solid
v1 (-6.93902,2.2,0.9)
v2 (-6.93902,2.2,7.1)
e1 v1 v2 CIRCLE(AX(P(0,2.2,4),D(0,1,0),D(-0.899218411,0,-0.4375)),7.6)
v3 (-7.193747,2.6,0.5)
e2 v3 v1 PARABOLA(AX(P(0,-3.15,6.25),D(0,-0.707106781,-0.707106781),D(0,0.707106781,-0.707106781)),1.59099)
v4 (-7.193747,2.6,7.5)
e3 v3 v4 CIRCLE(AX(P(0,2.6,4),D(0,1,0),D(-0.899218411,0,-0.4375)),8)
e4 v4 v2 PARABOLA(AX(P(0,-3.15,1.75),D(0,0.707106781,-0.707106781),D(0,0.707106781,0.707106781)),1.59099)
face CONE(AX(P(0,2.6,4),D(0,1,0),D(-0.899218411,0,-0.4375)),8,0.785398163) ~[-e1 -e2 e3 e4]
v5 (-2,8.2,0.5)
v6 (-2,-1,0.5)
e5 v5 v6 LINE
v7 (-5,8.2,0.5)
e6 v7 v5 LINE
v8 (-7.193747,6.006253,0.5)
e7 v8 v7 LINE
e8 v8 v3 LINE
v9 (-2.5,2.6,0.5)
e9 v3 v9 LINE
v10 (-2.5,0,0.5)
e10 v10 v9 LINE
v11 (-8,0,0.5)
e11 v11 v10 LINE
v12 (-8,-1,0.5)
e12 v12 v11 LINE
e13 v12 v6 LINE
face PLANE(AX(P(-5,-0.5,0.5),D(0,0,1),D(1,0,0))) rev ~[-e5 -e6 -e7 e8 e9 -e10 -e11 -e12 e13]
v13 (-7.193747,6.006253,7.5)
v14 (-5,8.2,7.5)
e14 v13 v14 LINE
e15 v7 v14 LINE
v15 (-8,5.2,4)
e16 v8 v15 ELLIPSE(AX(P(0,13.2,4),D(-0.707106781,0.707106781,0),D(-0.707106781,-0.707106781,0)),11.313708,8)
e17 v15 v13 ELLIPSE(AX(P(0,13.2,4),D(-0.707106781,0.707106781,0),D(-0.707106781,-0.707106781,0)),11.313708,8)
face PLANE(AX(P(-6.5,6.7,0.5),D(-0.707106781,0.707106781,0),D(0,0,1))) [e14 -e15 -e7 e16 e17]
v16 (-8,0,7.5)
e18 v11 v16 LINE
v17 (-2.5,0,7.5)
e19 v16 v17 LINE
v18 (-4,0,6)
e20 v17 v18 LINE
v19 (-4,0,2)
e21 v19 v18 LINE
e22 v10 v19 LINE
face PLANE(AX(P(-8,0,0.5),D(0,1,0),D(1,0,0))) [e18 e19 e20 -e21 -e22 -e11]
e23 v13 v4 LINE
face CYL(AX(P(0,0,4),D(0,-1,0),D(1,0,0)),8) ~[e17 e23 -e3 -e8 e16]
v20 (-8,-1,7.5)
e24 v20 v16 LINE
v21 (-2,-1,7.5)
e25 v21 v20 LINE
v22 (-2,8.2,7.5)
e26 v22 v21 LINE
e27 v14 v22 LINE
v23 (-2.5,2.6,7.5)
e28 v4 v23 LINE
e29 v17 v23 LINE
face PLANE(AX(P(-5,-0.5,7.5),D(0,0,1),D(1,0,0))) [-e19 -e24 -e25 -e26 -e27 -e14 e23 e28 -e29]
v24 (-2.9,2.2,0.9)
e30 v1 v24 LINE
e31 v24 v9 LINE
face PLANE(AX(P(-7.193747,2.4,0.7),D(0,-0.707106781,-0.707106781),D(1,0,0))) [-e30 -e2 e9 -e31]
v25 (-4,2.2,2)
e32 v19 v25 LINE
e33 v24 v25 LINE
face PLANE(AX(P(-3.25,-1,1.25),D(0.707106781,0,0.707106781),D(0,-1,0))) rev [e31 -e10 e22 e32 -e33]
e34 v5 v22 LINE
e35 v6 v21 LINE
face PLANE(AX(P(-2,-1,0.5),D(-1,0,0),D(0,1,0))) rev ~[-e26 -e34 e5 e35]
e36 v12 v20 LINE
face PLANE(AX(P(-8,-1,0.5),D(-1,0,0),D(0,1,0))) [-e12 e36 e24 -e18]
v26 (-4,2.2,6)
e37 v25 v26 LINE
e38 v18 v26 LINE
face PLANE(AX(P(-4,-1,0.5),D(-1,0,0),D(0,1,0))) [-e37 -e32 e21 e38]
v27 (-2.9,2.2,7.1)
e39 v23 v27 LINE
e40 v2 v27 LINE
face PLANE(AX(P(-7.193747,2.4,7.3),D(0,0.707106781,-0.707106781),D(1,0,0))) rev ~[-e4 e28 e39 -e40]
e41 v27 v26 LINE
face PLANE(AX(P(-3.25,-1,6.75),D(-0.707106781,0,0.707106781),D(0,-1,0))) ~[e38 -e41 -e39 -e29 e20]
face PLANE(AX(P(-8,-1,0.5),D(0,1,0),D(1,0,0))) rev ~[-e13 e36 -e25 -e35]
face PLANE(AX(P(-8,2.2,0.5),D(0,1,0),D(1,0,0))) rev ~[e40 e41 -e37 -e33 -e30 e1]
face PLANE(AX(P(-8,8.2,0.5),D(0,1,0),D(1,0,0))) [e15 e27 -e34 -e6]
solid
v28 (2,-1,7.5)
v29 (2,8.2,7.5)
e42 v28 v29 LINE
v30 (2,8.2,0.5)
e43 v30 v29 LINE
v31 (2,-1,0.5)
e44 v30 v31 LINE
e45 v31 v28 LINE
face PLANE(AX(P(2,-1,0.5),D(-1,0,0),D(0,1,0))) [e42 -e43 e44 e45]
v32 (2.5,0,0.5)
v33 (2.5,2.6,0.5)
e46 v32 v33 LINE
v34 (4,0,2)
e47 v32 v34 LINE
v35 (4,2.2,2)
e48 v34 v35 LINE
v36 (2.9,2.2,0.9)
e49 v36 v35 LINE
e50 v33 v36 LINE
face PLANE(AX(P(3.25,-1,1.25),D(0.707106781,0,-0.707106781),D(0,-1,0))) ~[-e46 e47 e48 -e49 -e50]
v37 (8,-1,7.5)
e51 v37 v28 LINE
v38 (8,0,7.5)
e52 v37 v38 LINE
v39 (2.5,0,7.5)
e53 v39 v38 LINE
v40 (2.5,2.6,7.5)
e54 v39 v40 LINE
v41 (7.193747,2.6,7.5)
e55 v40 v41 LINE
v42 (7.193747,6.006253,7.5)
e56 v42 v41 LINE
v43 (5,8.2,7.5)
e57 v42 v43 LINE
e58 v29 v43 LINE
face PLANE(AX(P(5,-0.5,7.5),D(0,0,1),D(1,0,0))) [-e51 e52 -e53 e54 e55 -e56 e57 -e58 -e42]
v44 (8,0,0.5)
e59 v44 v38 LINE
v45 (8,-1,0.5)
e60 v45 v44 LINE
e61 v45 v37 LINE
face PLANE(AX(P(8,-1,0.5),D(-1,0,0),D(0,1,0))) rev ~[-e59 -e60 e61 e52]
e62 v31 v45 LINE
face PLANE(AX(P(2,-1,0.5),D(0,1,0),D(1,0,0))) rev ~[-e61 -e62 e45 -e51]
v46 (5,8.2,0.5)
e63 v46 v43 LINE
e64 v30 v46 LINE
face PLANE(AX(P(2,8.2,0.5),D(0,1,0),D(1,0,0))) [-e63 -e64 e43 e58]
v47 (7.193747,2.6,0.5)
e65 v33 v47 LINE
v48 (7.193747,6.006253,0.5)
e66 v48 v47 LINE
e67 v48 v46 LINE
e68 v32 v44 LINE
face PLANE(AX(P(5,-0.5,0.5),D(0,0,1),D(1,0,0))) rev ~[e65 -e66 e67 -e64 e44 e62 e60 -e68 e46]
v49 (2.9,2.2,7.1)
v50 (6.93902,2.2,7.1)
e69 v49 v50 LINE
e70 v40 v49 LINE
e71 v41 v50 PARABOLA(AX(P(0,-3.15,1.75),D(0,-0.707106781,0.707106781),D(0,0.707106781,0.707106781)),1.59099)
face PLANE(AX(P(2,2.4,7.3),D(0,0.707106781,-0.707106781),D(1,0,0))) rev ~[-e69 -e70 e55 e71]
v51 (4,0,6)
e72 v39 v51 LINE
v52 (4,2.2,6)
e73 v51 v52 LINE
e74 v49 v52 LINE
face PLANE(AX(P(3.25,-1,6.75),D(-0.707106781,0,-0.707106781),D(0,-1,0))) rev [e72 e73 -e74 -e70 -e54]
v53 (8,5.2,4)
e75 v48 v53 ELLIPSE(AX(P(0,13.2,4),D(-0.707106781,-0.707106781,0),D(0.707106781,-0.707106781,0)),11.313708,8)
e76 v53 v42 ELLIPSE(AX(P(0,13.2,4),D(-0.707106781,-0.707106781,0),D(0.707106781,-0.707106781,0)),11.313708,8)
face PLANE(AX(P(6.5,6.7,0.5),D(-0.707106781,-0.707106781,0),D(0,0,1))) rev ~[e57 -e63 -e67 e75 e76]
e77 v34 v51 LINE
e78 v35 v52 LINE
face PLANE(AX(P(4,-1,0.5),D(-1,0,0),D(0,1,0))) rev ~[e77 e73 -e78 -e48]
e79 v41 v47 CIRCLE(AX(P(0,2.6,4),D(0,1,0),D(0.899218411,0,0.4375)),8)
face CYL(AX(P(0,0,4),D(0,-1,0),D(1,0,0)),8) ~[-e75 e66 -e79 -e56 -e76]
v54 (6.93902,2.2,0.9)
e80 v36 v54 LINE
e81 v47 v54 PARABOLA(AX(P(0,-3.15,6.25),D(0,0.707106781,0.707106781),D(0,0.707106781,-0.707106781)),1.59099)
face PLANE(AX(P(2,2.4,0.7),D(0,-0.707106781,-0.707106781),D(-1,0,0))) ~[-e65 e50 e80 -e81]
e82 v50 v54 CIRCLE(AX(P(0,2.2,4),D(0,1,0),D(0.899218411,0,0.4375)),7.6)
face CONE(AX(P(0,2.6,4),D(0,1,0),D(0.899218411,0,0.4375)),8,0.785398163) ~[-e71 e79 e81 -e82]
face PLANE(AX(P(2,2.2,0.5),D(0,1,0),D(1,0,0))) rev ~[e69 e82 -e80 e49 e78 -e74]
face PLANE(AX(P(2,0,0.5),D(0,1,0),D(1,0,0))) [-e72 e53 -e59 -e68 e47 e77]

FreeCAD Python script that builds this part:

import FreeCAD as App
import Part
import Sketcher

V = App.Vector
Q = App.Units.Quantity


def edges_at(feature, points):
    """Names of the edges that pass closest to the given points."""
    edges = feature.Shape.Edges
    near = lambda p: min(range(len(edges)), key=lambda i: edges[i].distToShape(Part.Vertex(*p))[0])
    return sorted({f"Edge{near(p) + 1}" for p in points})


def add_polygon(sketch, points):
    """Adds a closed chain of lines whose ends are joined by coincident constraints."""
    first, n = sketch.GeometryCount, len(points)
    for a, b in zip(points, points[1:] + points[:1]):
        sketch.addGeometry(Part.LineSegment(App.Vector(*a, 0), App.Vector(*b, 0)), False)
    for i in range(n):
        sketch.addConstraint(Sketcher.Constraint("Coincident", first + i, 2, first + (i + 1) % n, 1))

doc = App.newDocument("Part")
body = doc.addObject("PartDesign::Body", "Body")

# Sketch on XY plane
sketch1 = doc.addObject("Sketcher::SketchObject", "Sketch")
body.addObject(sketch1)
sketch1.AttachmentSupport = (doc.XY_Plane, [""])
sketch1.MapMode = "FlatFace"
sketch1.AttachmentOffset = App.Placement(V(0, 0, 0.5), App.Rotation())
add_polygon(sketch1, [(2, 0), (2, -1), (8, -1), (8, 0)])  # lines 0-3
sketch1.addConstraint([
    Sketcher.Constraint("Vertical", 0),
    Sketcher.Constraint("Horizontal", 1),
    Sketcher.Constraint("Vertical", 2),
    Sketcher.Constraint("Horizontal", 3),
    Sketcher.Constraint("PointOnObject", 2, 2, -1),
    Sketcher.Constraint("DistanceX", 1, 1, 1, 2, Q("6 mm")),
    Sketcher.Constraint("DistanceY", 0, 2, 0, 1, Q("1 mm")),
    Sketcher.Constraint("DistanceX", -1, 1, 0, 2, Q("2 mm")),
])
pad1 = doc.addObject("PartDesign::Pad", "Pad")
body.addObject(pad1)
pad1.Profile = sketch1
pad1.Length = 7
body2 = doc.addObject("PartDesign::Body", "Body001")

# Sketch on XY plane
sketch2 = doc.addObject("Sketcher::SketchObject", "Sketch001")
body2.addObject(sketch2)
sketch2.AttachmentSupport = (doc.getObject("XY_Plane001"), [""])
sketch2.MapMode = "FlatFace"
sketch2.AttachmentOffset = App.Placement(V(0, 0, 0.5), App.Rotation())
add_polygon(sketch2, [(-8, 0), (-8, -1), (-2, -1), (-2, 0)])  # lines 0-3
sketch2.addConstraint([
    Sketcher.Constraint("Vertical", 0),
    Sketcher.Constraint("Horizontal", 1),
    Sketcher.Constraint("Vertical", 2),
    Sketcher.Constraint("Horizontal", 3),
    Sketcher.Constraint("PointOnObject", 2, 2, -1),
    Sketcher.Constraint("DistanceX", 1, 1, 1, 2, Q("6 mm")),
    Sketcher.Constraint("DistanceY", 0, 2, 0, 1, Q("1 mm")),
    Sketcher.Constraint("DistanceX", 0, 2, -1, 1, Q("8 mm")),
])
pad2 = doc.addObject("PartDesign::Pad", "Pad001")
body2.addObject(pad2)
pad2.Profile = sketch2
pad2.Length = 7
body3 = doc.addObject("PartDesign::Body", "Body002")

# Sketch on XY plane
sketch3 = doc.addObject("Sketcher::SketchObject", "Sketch002")
body3.addObject(sketch3)
sketch3.AttachmentSupport = (doc.getObject("XY_Plane002"), [""])
sketch3.MapMode = "FlatFace"
sketch3.AttachmentOffset = App.Placement(V(0, 0, 0.5), App.Rotation())
add_polygon(sketch3, [(2, 8), (2, -1), (4, -1), (4, 8)])  # lines 0-3
sketch3.addConstraint([
    Sketcher.Constraint("Vertical", 0),
    Sketcher.Constraint("Horizontal", 1),
    Sketcher.Constraint("Vertical", 2),
    Sketcher.Constraint("Horizontal", 3),
    Sketcher.Constraint("DistanceX", 1, 1, 1, 2, Q("2 mm")),
    Sketcher.Constraint("DistanceY", 0, 2, 0, 1, Q("9 mm")),
    Sketcher.Constraint("DistanceX", -1, 1, 0, 2, Q("2 mm")),
    Sketcher.Constraint("DistanceY", 0, 2, -1, 1, Q("1 mm")),
])
pad3 = doc.addObject("PartDesign::Pad", "Pad002")
body3.addObject(pad3)
pad3.Profile = sketch3
pad3.Length = 7
body4 = doc.addObject("PartDesign::Body", "Body003")
body4.AllowCompound = True

# Sketch on XY plane
sketch4 = doc.addObject("Sketcher::SketchObject", "Sketch003")
body4.addObject(sketch4)
sketch4.AttachmentSupport = (doc.getObject("XY_Plane003"), [""])
sketch4.MapMode = "FlatFace"
sketch4.AttachmentOffset = App.Placement(V(0, 0, 0.5), App.Rotation())
add_polygon(sketch4, [(-4, 8), (-4, -1), (-2, -1), (-2, 8)])  # lines 0-3
sketch4.addConstraint([
    Sketcher.Constraint("Vertical", 0),
    Sketcher.Constraint("Horizontal", 1),
    Sketcher.Constraint("Vertical", 2),
    Sketcher.Constraint("Horizontal", 3),
    Sketcher.Constraint("DistanceX", 1, 1, 1, 2, Q("2 mm")),
    Sketcher.Constraint("DistanceY", 0, 2, 0, 1, Q("9 mm")),
    Sketcher.Constraint("DistanceX", 0, 2, -1, 1, Q("4 mm")),
    Sketcher.Constraint("DistanceY", 0, 2, -1, 1, Q("1 mm")),
])
pad4 = doc.addObject("PartDesign::Pad", "Pad003")
body4.addObject(pad4)
pad4.Profile = sketch4
pad4.Length = 7
doc.recompute()

boolean = doc.addObject("PartDesign::Boolean", "Boolean")
body4.addObject(boolean)
boolean.Type = "Fuse"
boolean.addObjects([body3])
doc.recompute()

chamfer = doc.addObject("PartDesign::Chamfer", "Chamfer")
body4.addObject(chamfer)
chamfer.Base = (boolean, edges_at(boolean, [
    (-4, 3.5, 7.5),
    (-4, 3.5, 0.5),
    (4, 3.5, 7.5),
    (4, 3.5, 0.5),
]))
chamfer.Size = 1.5
body5 = doc.addObject("PartDesign::Body", "Body004")

# Sketch on XY plane
sketch5 = doc.addObject("Sketcher::SketchObject", "Sketch004")
body5.addObject(sketch5)
sketch5.AttachmentSupport = (doc.getObject("XY_Plane004"), [""])
sketch5.MapMode = "FlatFace"
sketch5.AttachmentOffset = App.Placement(V(0, 0, 0.5), App.Rotation())
add_polygon(sketch5, [(2, 8), (2, 2), (8, 2), (8, 8)])  # lines 0-3
sketch5.addConstraint([
    Sketcher.Constraint("Vertical", 0),
    Sketcher.Constraint("Horizontal", 1),
    Sketcher.Constraint("Vertical", 2),
    Sketcher.Constraint("Horizontal", 3),
    Sketcher.Constraint("Equal", 3, 0),
    Sketcher.Constraint("DistanceX", 1, 1, 1, 2, Q("6 mm")),
    Sketcher.Constraint("DistanceX", -1, 1, 0, 2, Q("2 mm")),
    Sketcher.Constraint("DistanceY", -1, 1, 0, 2, Q("2 mm")),
])
pad5 = doc.addObject("PartDesign::Pad", "Pad004")
body5.addObject(pad5)
pad5.Profile = sketch5
pad5.Length = 7
body6 = doc.addObject("PartDesign::Body", "Body005")
body6.AllowCompound = True

# Sketch on XY plane
sketch6 = doc.addObject("Sketcher::SketchObject", "Sketch005")
body6.addObject(sketch6)
sketch6.AttachmentSupport = (doc.getObject("XY_Plane005"), [""])
sketch6.MapMode = "FlatFace"
sketch6.AttachmentOffset = App.Placement(V(0, 0, 0.5), App.Rotation())
add_polygon(sketch6, [(-8, 8), (-8, 2), (-2, 2), (-2, 8)])  # lines 0-3
sketch6.addConstraint([
    Sketcher.Constraint("Vertical", 0),
    Sketcher.Constraint("Horizontal", 1),
    Sketcher.Constraint("Vertical", 2),
    Sketcher.Constraint("Horizontal", 3),
    Sketcher.Constraint("Equal", 3, 0),
    Sketcher.Constraint("DistanceX", 1, 1, 1, 2, Q("6 mm")),
    Sketcher.Constraint("DistanceX", 0, 2, -1, 1, Q("8 mm")),
    Sketcher.Constraint("DistanceY", -1, 1, 0, 2, Q("2 mm")),
])
pad6 = doc.addObject("PartDesign::Pad", "Pad005")
body6.addObject(pad6)
pad6.Profile = sketch6
pad6.Length = 7
doc.recompute()

boolean2 = doc.addObject("PartDesign::Boolean", "Boolean001")
body6.addObject(boolean2)
boolean2.Type = "Fuse"
boolean2.addObjects([body5])
doc.recompute()

chamfer2 = doc.addObject("PartDesign::Chamfer", "Chamfer001")
body6.addObject(chamfer2)
chamfer2.Base = (boolean2, edges_at(boolean2, [(-8, 8, 4), (8, 8, 4)]))
chamfer2.Size = 3
body7 = doc.addObject("PartDesign::Body", "Body006")
body7.AllowCompound = True
doc.recompute()

body6.Placement = App.Placement(V(0, 0.2, 0), App.Rotation(V(0, 0, 1), 0))
boolean3 = doc.addObject("PartDesign::Boolean", "Boolean002")
body7.addObject(boolean3)
boolean3.Type = "Fuse"
boolean3.addObjects([body6])
body8 = doc.addObject("PartDesign::Body", "Body007")
body8.AllowCompound = True

# Sketch on XZ plane
sketch7 = doc.addObject("Sketcher::SketchObject", "Sketch006")
body8.addObject(sketch7)
sketch7.AttachmentSupport = (doc.getObject("XZ_Plane007"), [""])
sketch7.MapMode = "FlatFace"
sketch7.addGeometry(Part.Circle(V(0, 4, 0), V(0, 0, 1), 8), False)
sketch7.addConstraint([
    Sketcher.Constraint("PointOnObject", 0, 3, -2),
    Sketcher.Constraint("Diameter", 0, Q("16 mm")),
    Sketcher.Constraint("DistanceY", -1, 1, 0, 3, Q("4 mm")),
])
pad7 = doc.addObject("PartDesign::Pad", "Pad006")
body8.addObject(pad7)
pad7.Profile = sketch7
pad7.Length = 10
pad7.Reversed = True
doc.recompute()

boolean4 = doc.addObject("PartDesign::Boolean", "Boolean003")
body8.addObject(boolean4)
boolean4.Type = "Common"
boolean4.addObjects([body7])
doc.recompute()

chamfer3 = doc.addObject("PartDesign::Chamfer", "Chamfer002")
body8.addObject(chamfer3)
chamfer3.Base = (boolean4, edges_at(boolean4, [
    (8, 2.2, 4),
    (8, 2.2, 4),
    (4.597, 2.2, 0.5),
    (4.597, 2.2, 7.5),
    (-8, 2.2, 4),
    (-8, 2.2, 4),
    (-4.597, 2.2, 7.5),
    (-4.597, 2.2, 0.5),
]))
chamfer3.Size = 0.4
doc.recompute()

boolean5 = doc.addObject("PartDesign::Boolean", "Boolean004")
body8.addObject(boolean5)
boolean5.Type = "Fuse"
boolean5.addObjects([body])
doc.recompute()

boolean6 = doc.addObject("PartDesign::Boolean", "Boolean005")
body8.addObject(boolean6)
boolean6.Type = "Fuse"
boolean6.addObjects([body2])
doc.recompute()

boolean7 = doc.addObject("PartDesign::Boolean", "Boolean006")
body8.addObject(boolean7)
boolean7.Type = "Fuse"
boolean7.addObjects([body4])

doc.recompute()
